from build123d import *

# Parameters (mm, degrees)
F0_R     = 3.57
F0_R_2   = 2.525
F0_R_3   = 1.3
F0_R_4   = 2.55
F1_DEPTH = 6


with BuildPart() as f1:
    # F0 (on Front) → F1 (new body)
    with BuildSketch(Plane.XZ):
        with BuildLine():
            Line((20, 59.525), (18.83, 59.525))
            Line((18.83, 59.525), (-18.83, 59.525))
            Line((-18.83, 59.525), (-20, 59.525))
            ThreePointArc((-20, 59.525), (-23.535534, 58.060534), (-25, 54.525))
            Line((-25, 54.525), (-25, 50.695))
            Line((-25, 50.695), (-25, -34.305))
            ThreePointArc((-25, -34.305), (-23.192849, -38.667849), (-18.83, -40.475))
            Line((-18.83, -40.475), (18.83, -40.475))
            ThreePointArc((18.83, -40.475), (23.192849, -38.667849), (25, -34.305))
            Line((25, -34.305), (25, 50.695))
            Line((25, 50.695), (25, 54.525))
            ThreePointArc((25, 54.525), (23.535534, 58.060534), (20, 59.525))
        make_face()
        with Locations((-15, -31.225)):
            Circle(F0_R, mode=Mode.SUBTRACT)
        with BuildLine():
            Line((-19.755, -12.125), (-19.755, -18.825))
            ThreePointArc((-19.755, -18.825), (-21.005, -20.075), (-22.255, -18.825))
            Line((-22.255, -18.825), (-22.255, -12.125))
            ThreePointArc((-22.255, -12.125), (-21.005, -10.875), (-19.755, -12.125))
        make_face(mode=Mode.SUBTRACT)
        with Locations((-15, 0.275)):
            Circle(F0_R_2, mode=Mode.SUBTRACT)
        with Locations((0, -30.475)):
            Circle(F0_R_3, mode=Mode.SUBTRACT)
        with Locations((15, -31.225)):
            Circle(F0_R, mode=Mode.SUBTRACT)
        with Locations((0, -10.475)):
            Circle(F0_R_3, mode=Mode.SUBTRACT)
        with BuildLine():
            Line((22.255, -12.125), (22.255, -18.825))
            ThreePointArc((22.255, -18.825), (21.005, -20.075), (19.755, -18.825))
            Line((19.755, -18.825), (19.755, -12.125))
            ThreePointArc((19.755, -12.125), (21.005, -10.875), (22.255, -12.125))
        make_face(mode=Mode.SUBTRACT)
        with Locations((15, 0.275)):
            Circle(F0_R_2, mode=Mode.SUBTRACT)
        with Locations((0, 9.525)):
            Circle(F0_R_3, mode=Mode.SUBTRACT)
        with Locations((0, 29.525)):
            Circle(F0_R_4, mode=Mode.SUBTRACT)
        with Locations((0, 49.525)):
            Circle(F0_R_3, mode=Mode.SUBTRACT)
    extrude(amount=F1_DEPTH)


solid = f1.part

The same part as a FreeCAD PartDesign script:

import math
import FreeCAD as App
import Part
import Sketcher

doc = App.newDocument("Part")
body = doc.addObject("PartDesign::Body", "Body")

sketch1 = body.newObject("Sketcher::SketchObject", "Sketch")
sketch1.AttachmentSupport = (doc.getObject("XZ_Plane"), [""])
sketch1.MapMode = "FlatFace"
sketch1.addGeometry(Part.LineSegment(App.Vector(20, 59.5, 0), App.Vector(-20, 59.5, 0)), False)
sketch1.addGeometry(Part.ArcOfCircle(Part.Circle(App.Vector(-20, 54.5, 0), App.Vector(0, 0, 1), 5), math.radians(90), math.radians(180)), False)
sketch1.addGeometry(Part.LineSegment(App.Vector(-25, 54.5, 0), App.Vector(-25, -34.3, 0)), False)
sketch1.addGeometry(Part.ArcOfCircle(Part.Circle(App.Vector(-18.8, -34.3, 0), App.Vector(0, 0, 1), 6.2), math.radians(180), math.radians(270)), False)
sketch1.addGeometry(Part.LineSegment(App.Vector(-18.8, -40.5, 0), App.Vector(18.8, -40.5, 0)), False)
sketch1.addGeometry(Part.ArcOfCircle(Part.Circle(App.Vector(18.8, -34.3, 0), App.Vector(0, 0, 1), 6.2), math.radians(-90), math.radians(0)), False)
sketch1.addGeometry(Part.LineSegment(App.Vector(25, -34.3, 0), App.Vector(25, 54.5, 0)), False)
sketch1.addGeometry(Part.ArcOfCircle(Part.Circle(App.Vector(20, 54.5, 0), App.Vector(0, 0, 1), 5), math.radians(0), math.radians(90)), False)
sketch1.addGeometry(Part.Circle(App.Vector(-15, -31.2, 0), App.Vector(0, 0, 1), 3.6), False)
sketch1.addGeometry(Part.ArcOfCircle(Part.Circle(App.Vector(-21, -12.1, 0), App.Vector(0, 0, 1), 1.2), math.radians(0), math.radians(180)), False)
sketch1.addGeometry(Part.LineSegment(App.Vector(-19.8, -12.1, 0), App.Vector(-19.8, -18.8, 0)), False)
sketch1.addGeometry(Part.ArcOfCircle(Part.Circle(App.Vector(-21, -18.8, 0), App.Vector(0, 0, 1), 1.2), math.radians(180), math.radians(360)), False)
sketch1.addGeometry(Part.LineSegment(App.Vector(-22.3, -18.8, 0), App.Vector(-22.3, -12.1, 0)), False)
sketch1.addGeometry(Part.Circle(App.Vector(-15, 0.3, 0), App.Vector(0, 0, 1), 2.5), False)
sketch1.addGeometry(Part.Circle(App.Vector(0, -30.5, 0), App.Vector(0, 0, 1), 1.3), False)
sketch1.addGeometry(Part.Circle(App.Vector(15, -31.2, 0), App.Vector(0, 0, 1), 3.6), False)
sketch1.addGeometry(Part.ArcOfCircle(Part.Circle(App.Vector(21, -12.1, 0), App.Vector(0, 0, 1), 1.2), math.radians(0), math.radians(180)), False)
sketch1.addGeometry(Part.LineSegment(App.Vector(22.3, -12.1, 0), App.Vector(22.3, -18.8, 0)), False)
sketch1.addGeometry(Part.ArcOfCircle(Part.Circle(App.Vector(21, -18.8, 0), App.Vector(0, 0, 1), 1.2), math.radians(180), math.radians(360)), False)
sketch1.addGeometry(Part.LineSegment(App.Vector(19.8, -18.8, 0), App.Vector(19.8, -12.1, 0)), False)
sketch1.addGeometry(Part.Circle(App.Vector(0, -10.5, 0), App.Vector(0, 0, 1), 1.3), False)
sketch1.addGeometry(Part.Circle(App.Vector(15, 0.3, 0), App.Vector(0, 0, 1), 2.5), False)
sketch1.addGeometry(Part.Circle(App.Vector(0, 9.5, 0), App.Vector(0, 0, 1), 1.3), False)
sketch1.addGeometry(Part.Circle(App.Vector(0, 29.5, 0), App.Vector(0, 0, 1), 2.5), False)
sketch1.addGeometry(Part.Circle(App.Vector(0, 49.5, 0), App.Vector(0, 0, 1), 1.3), False)
sketch1.addConstraint(Sketcher.Constraint("Tangent", 0, 2, 1, 1))
sketch1.addConstraint(Sketcher.Constraint("Tangent", 1, 2, 2, 1))
sketch1.addConstraint(Sketcher.Constraint("Tangent", 2, 2, 3, 1))
sketch1.addConstraint(Sketcher.Constraint("Tangent", 3, 2, 4, 1))
sketch1.addConstraint(Sketcher.Constraint("Tangent", 4, 2, 5, 1))
sketch1.addConstraint(Sketcher.Constraint("Tangent", 5, 2, 6, 1))
sketch1.addConstraint(Sketcher.Constraint("Tangent", 6, 2, 7, 1))
sketch1.addConstraint(Sketcher.Constraint("Tangent", 7, 2, 0, 1))
sketch1.addConstraint(Sketcher.Constraint("Tangent", 9, 1, 10, 1))
sketch1.addConstraint(Sketcher.Constraint("Tangent", 10, 2, 11, 2))
sketch1.addConstraint(Sketcher.Constraint("Tangent", 11, 1, 12, 1))
sketch1.addConstraint(Sketcher.Constraint("Tangent", 12, 2, 9, 2))
sketch1.addConstraint(Sketcher.Constraint("Tangent", 16, 1, 17, 1))
sketch1.addConstraint(Sketcher.Constraint("Tangent", 17, 2, 18, 2))
sketch1.addConstraint(Sketcher.Constraint("Tangent", 18, 1, 19, 1))
sketch1.addConstraint(Sketcher.Constraint("Tangent", 19, 2, 16, 2))
sketch1.addConstraint(Sketcher.Constraint("Horizontal", 0))
sketch1.addConstraint(Sketcher.Constraint("Vertical", 2))
sketch1.addConstraint(Sketcher.Constraint("Horizontal", 4))
sketch1.addConstraint(Sketcher.Constraint("Vertical", 6))
sketch1.addConstraint(Sketcher.Constraint("Vertical", 10))
sketch1.addConstraint(Sketcher.Constraint("Vertical", 12))
sketch1.addConstraint(Sketcher.Constraint("Vertical", 17))
sketch1.addConstraint(Sketcher.Constraint("Vertical", 19))
sketch1.addConstraint(Sketcher.Constraint("Equal", 3, 5))
sketch1.addConstraint(Sketcher.Constraint("Equal", 1, 7))
sketch1.addConstraint(Sketcher.Constraint("Equal", 8, 15))
sketch1.addConstraint(Sketcher.Constraint("Equal", 11, 16))
sketch1.addConstraint(Sketcher.Constraint("Equal", 14, 20))
sketch1.addConstraint(Sketcher.Constraint("Equal", 13, 21))
sketch1.addConstraint(Sketcher.Constraint("Equal", 20, 22))
sketch1.addConstraint(Sketcher.Constraint("Equal", 22, 24))
sketch1.addConstraint(Sketcher.Constraint("Symmetric", 8, 3, 15, 3, -2))
sketch1.addConstraint(Sketcher.Constraint("Symmetric", 9, 3, 16, 3, -2))
sketch1.addConstraint(Sketcher.Constraint("Symmetric", 13, 3, 21, 3, -2))
sketch1.addConstraint(Sketcher.Constraint("PointOnObject", 14, 3, -2))
sketch1.addConstraint(Sketcher.Constraint("PointOnObject", 20, 3, -2))
sketch1.addConstraint(Sketcher.Constraint("PointOnObject", 22, 3, -2))
sketch1.addConstraint(Sketcher.Constraint("PointOnObject", 23, 3, -2))
sketch1.addConstraint(Sketcher.Constraint("PointOnObject", 24, 3, -2))
sketch1.addConstraint(Sketcher.Constraint("Horizontal", 11, 3, 18, 3))
sketch1.addConstraint(Sketcher.Constraint("Vertical", 8, 3, 13, 3))
sketch1.addConstraint(Sketcher.Constraint("Radius", 1, 5.0))
sketch1.addConstraint(Sketcher.Constraint("Diameter", 14, 2.6))
sketch1.addConstraint(Sketcher.Constraint("Diameter", 23, 5.1))
sketch1.addConstraint(Sketcher.Constraint("Diameter", 8, 7.14))
sketch1.addConstraint(Sketcher.Constraint("Diameter", 13, 5.05))
sketch1.addConstraint(Sketcher.Constraint("DistanceX", 0, 2, 0, 1, 40.0))
sketch1.addConstraint(Sketcher.Constraint("Radius", 3, 6.169999))
sketch1.addConstraint(Sketcher.Constraint("Radius", 9, 1.25))
sketch1.addConstraint(Sketcher.Constraint("DistanceY", 10, 2, 10, 1, 6.7))
sketch1.addConstraint(Sketcher.Constraint("DistanceX", 1, 3, -1, 1, 20.0))
sketch1.addConstraint(Sketcher.Constraint("DistanceX", 8, 3, -1, 1, 15.0))
sketch1.addConstraint(Sketcher.Constraint("DistanceY", 14, 3, 20, 3, 20.0))
sketch1.addConstraint(Sketcher.Constraint("DistanceY", 20, 3, 22, 3, 20.0))
sketch1.addConstraint(Sketcher.Constraint("DistanceY", 22, 3, 23, 3, 20.0))
sketch1.addConstraint(Sketcher.Constraint("DistanceY", 23, 3, 1, 3, 25.0))
sketch1.addConstraint(Sketcher.Constraint("DistanceY", 23, 3, 24, 3, 20.0))
sketch1.addConstraint(Sketcher.Constraint("DistanceY", 3, 2, 14, 3, 10.0))
sketch1.addConstraint(Sketcher.Constraint("DistanceY", 8, 3, 9, 3, 19.1))
sketch1.addConstraint(Sketcher.Constraint("DistanceY", 9, 3, 13, 3, 12.4))
sketch1.addConstraint(Sketcher.Constraint("DistanceY", 3, 3, 8, 3, 3.080001))
sketch1.addConstraint(Sketcher.Constraint("DistanceY", -1, 1, 1, 3, 54.525))
sketch1.addConstraint(Sketcher.Constraint("DistanceX", 9, 3, -1, 1, 21.005))
pad1 = body.newObject("PartDesign::Pad", "Pad")
pad1.Profile = sketch1
pad1.Length = 6

doc.recompute()
